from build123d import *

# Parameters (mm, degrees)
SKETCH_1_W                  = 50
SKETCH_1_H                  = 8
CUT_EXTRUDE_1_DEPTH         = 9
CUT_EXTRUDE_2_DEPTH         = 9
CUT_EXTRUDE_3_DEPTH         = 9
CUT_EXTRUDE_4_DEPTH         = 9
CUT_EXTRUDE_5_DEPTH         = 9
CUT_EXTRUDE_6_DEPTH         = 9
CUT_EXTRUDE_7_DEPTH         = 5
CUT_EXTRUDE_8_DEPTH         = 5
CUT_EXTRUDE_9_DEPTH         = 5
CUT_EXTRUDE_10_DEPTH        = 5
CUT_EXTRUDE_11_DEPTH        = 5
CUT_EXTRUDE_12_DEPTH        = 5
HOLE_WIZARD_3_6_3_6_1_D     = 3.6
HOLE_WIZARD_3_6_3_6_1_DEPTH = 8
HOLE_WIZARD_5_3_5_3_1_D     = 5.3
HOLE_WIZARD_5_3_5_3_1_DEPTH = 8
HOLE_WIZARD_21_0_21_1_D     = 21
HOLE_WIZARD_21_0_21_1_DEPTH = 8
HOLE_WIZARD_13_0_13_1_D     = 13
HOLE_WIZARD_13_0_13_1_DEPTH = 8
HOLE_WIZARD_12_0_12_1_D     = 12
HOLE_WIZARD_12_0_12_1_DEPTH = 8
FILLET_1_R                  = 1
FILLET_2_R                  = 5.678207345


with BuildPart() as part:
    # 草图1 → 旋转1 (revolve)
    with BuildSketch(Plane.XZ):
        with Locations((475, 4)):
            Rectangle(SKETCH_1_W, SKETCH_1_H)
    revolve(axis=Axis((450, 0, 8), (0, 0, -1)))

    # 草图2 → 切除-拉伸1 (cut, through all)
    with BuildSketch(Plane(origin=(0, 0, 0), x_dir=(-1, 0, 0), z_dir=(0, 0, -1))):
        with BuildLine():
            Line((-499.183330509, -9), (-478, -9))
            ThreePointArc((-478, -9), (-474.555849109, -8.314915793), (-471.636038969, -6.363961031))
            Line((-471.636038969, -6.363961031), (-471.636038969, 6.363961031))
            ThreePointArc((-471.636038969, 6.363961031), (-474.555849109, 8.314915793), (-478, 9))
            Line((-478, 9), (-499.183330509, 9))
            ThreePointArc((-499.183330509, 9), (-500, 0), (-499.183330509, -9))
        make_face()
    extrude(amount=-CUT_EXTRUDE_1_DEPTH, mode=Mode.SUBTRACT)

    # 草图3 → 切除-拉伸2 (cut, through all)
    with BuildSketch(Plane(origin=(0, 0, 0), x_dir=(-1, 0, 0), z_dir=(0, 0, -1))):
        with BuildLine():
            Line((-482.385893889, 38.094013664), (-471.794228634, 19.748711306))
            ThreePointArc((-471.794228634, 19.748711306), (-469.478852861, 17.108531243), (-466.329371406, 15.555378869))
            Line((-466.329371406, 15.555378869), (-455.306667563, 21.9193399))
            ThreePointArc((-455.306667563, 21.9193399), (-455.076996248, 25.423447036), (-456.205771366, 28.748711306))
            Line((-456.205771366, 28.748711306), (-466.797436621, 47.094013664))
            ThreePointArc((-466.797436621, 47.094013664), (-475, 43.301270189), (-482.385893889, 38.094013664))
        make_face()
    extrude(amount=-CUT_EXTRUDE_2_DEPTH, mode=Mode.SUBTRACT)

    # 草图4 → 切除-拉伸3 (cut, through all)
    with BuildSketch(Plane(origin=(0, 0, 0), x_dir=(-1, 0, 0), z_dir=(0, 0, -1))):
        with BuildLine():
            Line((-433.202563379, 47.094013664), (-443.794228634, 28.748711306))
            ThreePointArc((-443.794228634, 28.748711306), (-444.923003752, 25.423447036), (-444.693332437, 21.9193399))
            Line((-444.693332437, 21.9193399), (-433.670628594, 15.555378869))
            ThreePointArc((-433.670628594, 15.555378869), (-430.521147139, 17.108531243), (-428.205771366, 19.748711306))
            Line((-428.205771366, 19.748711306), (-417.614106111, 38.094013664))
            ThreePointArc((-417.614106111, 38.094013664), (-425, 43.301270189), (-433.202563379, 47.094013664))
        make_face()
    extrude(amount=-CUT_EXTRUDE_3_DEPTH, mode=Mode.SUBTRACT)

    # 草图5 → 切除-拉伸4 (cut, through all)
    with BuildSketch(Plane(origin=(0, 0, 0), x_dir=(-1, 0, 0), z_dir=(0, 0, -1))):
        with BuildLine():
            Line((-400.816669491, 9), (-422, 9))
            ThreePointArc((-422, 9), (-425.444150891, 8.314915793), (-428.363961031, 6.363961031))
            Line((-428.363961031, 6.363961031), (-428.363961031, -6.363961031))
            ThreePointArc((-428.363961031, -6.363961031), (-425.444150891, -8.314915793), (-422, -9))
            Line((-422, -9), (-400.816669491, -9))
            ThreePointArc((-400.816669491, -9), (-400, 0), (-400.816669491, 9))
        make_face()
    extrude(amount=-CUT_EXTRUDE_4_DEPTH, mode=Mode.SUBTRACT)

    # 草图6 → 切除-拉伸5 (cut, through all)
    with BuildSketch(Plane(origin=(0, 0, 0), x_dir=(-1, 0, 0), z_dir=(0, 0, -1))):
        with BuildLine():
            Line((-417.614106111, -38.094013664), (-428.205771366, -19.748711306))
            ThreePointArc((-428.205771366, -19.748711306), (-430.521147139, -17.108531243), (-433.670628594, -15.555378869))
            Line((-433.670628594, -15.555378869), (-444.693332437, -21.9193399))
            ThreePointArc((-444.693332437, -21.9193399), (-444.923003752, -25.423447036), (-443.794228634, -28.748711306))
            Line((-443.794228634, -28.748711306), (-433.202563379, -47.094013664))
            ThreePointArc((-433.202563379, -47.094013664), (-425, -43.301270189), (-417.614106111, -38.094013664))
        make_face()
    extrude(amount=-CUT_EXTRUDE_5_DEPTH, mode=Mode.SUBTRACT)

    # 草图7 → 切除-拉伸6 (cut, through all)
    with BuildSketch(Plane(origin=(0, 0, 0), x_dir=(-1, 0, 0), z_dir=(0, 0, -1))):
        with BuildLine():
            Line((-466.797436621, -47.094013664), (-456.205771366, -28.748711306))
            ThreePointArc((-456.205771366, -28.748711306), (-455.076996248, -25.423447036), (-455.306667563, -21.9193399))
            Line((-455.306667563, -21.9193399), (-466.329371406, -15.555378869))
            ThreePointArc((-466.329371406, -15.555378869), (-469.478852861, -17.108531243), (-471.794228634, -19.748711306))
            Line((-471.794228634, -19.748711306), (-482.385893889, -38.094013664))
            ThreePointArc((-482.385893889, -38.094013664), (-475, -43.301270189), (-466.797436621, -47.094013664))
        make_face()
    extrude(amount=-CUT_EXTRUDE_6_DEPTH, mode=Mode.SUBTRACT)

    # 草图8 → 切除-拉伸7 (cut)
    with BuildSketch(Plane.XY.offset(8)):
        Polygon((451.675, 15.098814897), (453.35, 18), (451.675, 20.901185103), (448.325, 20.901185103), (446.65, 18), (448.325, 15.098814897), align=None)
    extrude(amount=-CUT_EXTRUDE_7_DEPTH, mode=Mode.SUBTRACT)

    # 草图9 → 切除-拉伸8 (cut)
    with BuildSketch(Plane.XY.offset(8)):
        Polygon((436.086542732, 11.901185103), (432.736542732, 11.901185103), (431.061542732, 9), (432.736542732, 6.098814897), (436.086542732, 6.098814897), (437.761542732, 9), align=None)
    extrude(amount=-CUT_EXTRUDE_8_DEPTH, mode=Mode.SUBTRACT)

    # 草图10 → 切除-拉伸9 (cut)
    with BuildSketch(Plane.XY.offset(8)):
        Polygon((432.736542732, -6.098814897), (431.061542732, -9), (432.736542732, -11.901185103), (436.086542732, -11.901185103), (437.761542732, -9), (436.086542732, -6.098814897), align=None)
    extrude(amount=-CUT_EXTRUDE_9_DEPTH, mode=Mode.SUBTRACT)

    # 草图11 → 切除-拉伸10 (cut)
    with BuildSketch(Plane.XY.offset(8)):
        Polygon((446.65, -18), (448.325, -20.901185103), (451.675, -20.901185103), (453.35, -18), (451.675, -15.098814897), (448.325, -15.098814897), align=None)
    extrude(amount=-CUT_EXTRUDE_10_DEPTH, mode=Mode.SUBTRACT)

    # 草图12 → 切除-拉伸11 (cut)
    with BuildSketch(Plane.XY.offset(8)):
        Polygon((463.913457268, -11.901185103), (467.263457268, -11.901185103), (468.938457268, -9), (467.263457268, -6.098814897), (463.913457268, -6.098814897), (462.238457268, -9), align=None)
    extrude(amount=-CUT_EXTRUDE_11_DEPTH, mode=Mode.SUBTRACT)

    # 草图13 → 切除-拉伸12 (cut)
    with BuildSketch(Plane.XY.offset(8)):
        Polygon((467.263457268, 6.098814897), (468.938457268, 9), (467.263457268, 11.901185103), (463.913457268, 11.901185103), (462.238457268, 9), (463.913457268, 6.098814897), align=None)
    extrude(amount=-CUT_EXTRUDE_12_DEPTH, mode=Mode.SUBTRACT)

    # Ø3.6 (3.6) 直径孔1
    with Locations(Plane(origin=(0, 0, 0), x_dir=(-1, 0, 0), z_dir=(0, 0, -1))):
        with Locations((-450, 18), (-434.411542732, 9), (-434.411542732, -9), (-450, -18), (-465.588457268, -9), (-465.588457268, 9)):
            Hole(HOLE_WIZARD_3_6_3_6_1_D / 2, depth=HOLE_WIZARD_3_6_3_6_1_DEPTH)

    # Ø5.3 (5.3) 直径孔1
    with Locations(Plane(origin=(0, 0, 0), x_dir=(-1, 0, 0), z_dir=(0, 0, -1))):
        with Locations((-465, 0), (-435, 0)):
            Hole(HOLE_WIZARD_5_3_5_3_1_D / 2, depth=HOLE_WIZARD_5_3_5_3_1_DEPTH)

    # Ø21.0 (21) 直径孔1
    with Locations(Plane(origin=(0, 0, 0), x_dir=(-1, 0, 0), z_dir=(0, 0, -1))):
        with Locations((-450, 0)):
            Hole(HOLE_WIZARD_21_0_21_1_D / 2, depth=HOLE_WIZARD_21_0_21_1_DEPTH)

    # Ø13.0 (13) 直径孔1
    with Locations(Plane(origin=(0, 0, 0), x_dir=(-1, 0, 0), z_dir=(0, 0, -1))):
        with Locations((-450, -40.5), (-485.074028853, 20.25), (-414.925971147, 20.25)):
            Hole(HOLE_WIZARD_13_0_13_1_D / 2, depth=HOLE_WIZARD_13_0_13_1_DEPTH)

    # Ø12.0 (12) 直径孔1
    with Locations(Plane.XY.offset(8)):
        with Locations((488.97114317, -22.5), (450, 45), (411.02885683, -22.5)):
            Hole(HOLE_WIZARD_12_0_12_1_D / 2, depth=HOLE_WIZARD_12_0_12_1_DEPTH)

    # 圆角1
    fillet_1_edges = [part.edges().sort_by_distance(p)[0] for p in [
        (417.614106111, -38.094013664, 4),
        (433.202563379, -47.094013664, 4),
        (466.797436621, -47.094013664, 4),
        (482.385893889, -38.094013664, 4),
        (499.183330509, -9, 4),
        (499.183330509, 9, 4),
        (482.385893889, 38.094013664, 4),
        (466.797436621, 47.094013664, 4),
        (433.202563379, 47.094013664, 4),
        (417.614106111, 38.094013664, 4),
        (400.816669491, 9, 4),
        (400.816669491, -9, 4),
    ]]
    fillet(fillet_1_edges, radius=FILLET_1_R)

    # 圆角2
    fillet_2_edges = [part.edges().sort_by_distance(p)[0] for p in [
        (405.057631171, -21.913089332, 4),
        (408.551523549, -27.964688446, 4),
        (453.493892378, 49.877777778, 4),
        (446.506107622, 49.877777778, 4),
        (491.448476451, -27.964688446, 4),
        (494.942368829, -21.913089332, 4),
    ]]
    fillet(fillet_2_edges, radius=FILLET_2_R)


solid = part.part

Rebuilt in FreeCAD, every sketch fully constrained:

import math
import FreeCAD as App
import Part
import Sketcher
from FreeCAD import Vector
Q = App.Units.Quantity


def edges_at(feature, points):
    """Names of the edges that pass closest to the given points."""
    edges = feature.Shape.Edges
    near = lambda p: min(range(len(edges)), key=lambda i: edges[i].distToShape(Part.Vertex(*p))[0])
    return sorted({f"Edge{near(p) + 1}" for p in points})

doc = App.newDocument("Part")
body = doc.addObject("PartDesign::Body", "Body")

sketch1 = body.newObject("Sketcher::SketchObject", "Sketch")
sketch1.AttachmentSupport = (doc.getObject("XZ_Plane"), [""])
sketch1.MapMode = "FlatFace"
sketch1.addGeometry(Part.LineSegment(Vector(450, 8, 0), Vector(450, 0, 0)), False)
sketch1.addGeometry(Part.LineSegment(Vector(450, 0, 0), Vector(500, 0, 0)), False)
sketch1.addGeometry(Part.LineSegment(Vector(500, 0, 0), Vector(500, 8, 0)), False)
sketch1.addGeometry(Part.LineSegment(Vector(500, 8, 0), Vector(450, 8, 0)), False)
sketch1.addGeometry(Part.LineSegment(Vector(450, 8, 0), Vector(450, 0, 0)), True)
sketch1.addConstraint(Sketcher.Constraint("Coincident", 0, 2, 1, 1))
sketch1.addConstraint(Sketcher.Constraint("Coincident", 1, 2, 2, 1))
sketch1.addConstraint(Sketcher.Constraint("Coincident", 2, 2, 3, 1))
sketch1.addConstraint(Sketcher.Constraint("Coincident", 3, 2, 0, 1))
sketch1.addConstraint(Sketcher.Constraint("Vertical", 0))
sketch1.addConstraint(Sketcher.Constraint("Horizontal", 1))
sketch1.addConstraint(Sketcher.Constraint("Vertical", 2))
sketch1.addConstraint(Sketcher.Constraint("Horizontal", 3))
sketch1.addConstraint(Sketcher.Constraint("Vertical", 4))
sketch1.addConstraint(Sketcher.Constraint("Coincident", 4, 1, 3, 2))
sketch1.addConstraint(Sketcher.Constraint("PointOnObject", 0, 2, -1))
sketch1.addConstraint(Sketcher.Constraint("PointOnObject", 4, 2, -1))
sketch1.addConstraint(Sketcher.Constraint("DistanceX", 1, 1, 1, 2, Q("50 mm")))
sketch1.addConstraint(Sketcher.Constraint("DistanceY", 0, 2, 0, 1, Q("8 mm")))
sketch1.addConstraint(Sketcher.Constraint("DistanceX", -1, 1, 0, 2, Q("450 mm")))
revolution = body.newObject("PartDesign::Revolution", "Revolution")
revolution.Profile = sketch1
revolution.ReferenceAxis = (sketch1, ["Axis0"])
revolution.Angle = 360

sketch2 = body.newObject("Sketcher::SketchObject", "Sketch001")
sketch2.AttachmentSupport = (doc.getObject("XY_Plane"), [""])
sketch2.MapMode = "FlatFace"
sketch2.addGeometry(Part.LineSegment(Vector(499, -9, 0), Vector(478, -9, 0)), False)
sketch2.addGeometry(Part.ArcOfCircle(Part.Circle(Vector(478, 0, 0), Vector(0, 0, 1), 9), math.radians(-135), math.radians(-90)), False)
sketch2.addGeometry(Part.LineSegment(Vector(472, -6, 0), Vector(472, 6, 0)), False)
sketch2.addGeometry(Part.ArcOfCircle(Part.Circle(Vector(478, 0, 0), Vector(0, 0, 1), 9), math.radians(90), math.radians(135)), False)
sketch2.addGeometry(Part.LineSegment(Vector(478, 9, 0), Vector(499, 9, 0)), False)
sketch2.addGeometry(Part.ArcOfCircle(Part.Circle(Vector(450, 0, 0), Vector(0, 0, 1), 50), math.radians(-10), math.radians(10)), False)
sketch2.addConstraint(Sketcher.Constraint("Tangent", 0, 2, 1, 2))
sketch2.addConstraint(Sketcher.Constraint("Coincident", 1, 1, 2, 1))
sketch2.addConstraint(Sketcher.Constraint("Coincident", 2, 2, 3, 2))
sketch2.addConstraint(Sketcher.Constraint("Tangent", 3, 1, 4, 1))
sketch2.addConstraint(Sketcher.Constraint("Coincident", 4, 2, 5, 2))
sketch2.addConstraint(Sketcher.Constraint("Coincident", 5, 1, 0, 1))
sketch2.addConstraint(Sketcher.Constraint("Horizontal", 0))
sketch2.addConstraint(Sketcher.Constraint("Vertical", 2))
sketch2.addConstraint(Sketcher.Constraint("Horizontal", 4))
sketch2.addConstraint(Sketcher.Constraint("Coincident", 3, 3, 1, 3))
sketch2.addConstraint(Sketcher.Constraint("Equal", 1, 3))
sketch2.addConstraint(Sketcher.Constraint("Symmetric", 4, 2, 5, 1, -1))
sketch2.addConstraint(Sketcher.Constraint("Radius", 1, Q("9 mm")))
sketch2.addConstraint(Sketcher.Constraint("Radius", 5, Q("50 mm")))
sketch2.addConstraint(Sketcher.Constraint("DistanceX", -1, 1, 1, 3, Q("478 mm")))
sketch2.addConstraint(Sketcher.Constraint("DistanceX", -1, 1, 5, 3, Q("450 mm")))
sketch2.addConstraint(Sketcher.Constraint("DistanceY", 2, 1, 2, 2, Q("12.727922 mm")))
pocket1 = body.newObject("PartDesign::Pocket", "Pocket")
pocket1.Profile = sketch2
pocket1.Type = "ThroughAll"
pocket1.Reversed = True

sketch3 = body.newObject("Sketcher::SketchObject", "Sketch002")
sketch3.AttachmentSupport = (doc.getObject("XY_Plane"), [""])
sketch3.MapMode = "FlatFace"
sketch3.addGeometry(Part.LineSegment(Vector(482, 38, 0), Vector(472, 20, 0)), False)
sketch3.addGeometry(Part.ArcOfCircle(Part.Circle(Vector(464, 24, 0), Vector(0, 0, 1), 9), math.radians(-75), math.radians(-30)), False)
sketch3.addGeometry(Part.LineSegment(Vector(466, 16, 0), Vector(455, 22, 0)), False)
sketch3.addGeometry(Part.ArcOfCircle(Part.Circle(Vector(464, 24, 0), Vector(0, 0, 1), 9), math.radians(150), math.radians(195)), False)
sketch3.addGeometry(Part.LineSegment(Vector(456, 29, 0), Vector(467, 47, 0)), False)
sketch3.addGeometry(Part.ArcOfCircle(Part.Circle(Vector(450, 0, 0), Vector(0, 0, 1), 50), math.radians(50), math.radians(70)), False)
sketch3.addConstraint(Sketcher.Constraint("Tangent", 0, 2, 1, 2))
sketch3.addConstraint(Sketcher.Constraint("Coincident", 1, 1, 2, 1))
sketch3.addConstraint(Sketcher.Constraint("Coincident", 2, 2, 3, 2))
sketch3.addConstraint(Sketcher.Constraint("Tangent", 3, 1, 4, 1))
sketch3.addConstraint(Sketcher.Constraint("Coincident", 4, 2, 5, 2))
sketch3.addConstraint(Sketcher.Constraint("Coincident", 5, 1, 0, 1))
sketch3.addConstraint(Sketcher.Constraint("Coincident", 3, 3, 1, 3))
sketch3.addConstraint(Sketcher.Constraint("Equal", 1, 3))
sketch3.addConstraint(Sketcher.Constraint("PointOnObject", 5, 3, -1))
sketch3.addConstraint(Sketcher.Constraint("Perpendicular", 0, 2))
sketch3.addConstraint(Sketcher.Constraint("Perpendicular", 2, 4))
sketch3.addConstraint(Sketcher.Constraint("Equal", 0, 4))
sketch3.addConstraint(Sketcher.Constraint("Radius", 1, Q("9 mm")))
sketch3.addConstraint(Sketcher.Constraint("Radius", 5, Q("50 mm")))
sketch3.addConstraint(Sketcher.Constraint("Angle", 0, Q("-120 deg")))
sketch3.addConstraint(Sketcher.Constraint("DistanceX", -1, 1, 1, 3, Q("464 mm")))
sketch3.addConstraint(Sketcher.Constraint("DistanceX", -1, 1, 5, 3, Q("450 mm")))
sketch3.addConstraint(Sketcher.Constraint("DistanceX", 3, 1, 1, 1, Q("10.1236 mm")))
pocket2 = body.newObject("PartDesign::Pocket", "Pocket001")
pocket2.Profile = sketch3
pocket2.Type = "ThroughAll"
pocket2.Reversed = True

sketch4 = body.newObject("Sketcher::SketchObject", "Sketch003")
sketch4.AttachmentSupport = (doc.getObject("XY_Plane"), [""])
sketch4.MapMode = "FlatFace"
sketch4.addGeometry(Part.LineSegment(Vector(433, 47, 0), Vector(444, 29, 0)), False)
sketch4.addGeometry(Part.ArcOfCircle(Part.Circle(Vector(436, 24, 0), Vector(0, 0, 1), 9), math.radians(-15), math.radians(30)), False)
sketch4.addGeometry(Part.LineSegment(Vector(445, 22, 0), Vector(434, 16, 0)), False)
sketch4.addGeometry(Part.ArcOfCircle(Part.Circle(Vector(436, 24, 0), Vector(0, 0, 1), 9), math.radians(-150), math.radians(-105)), False)
sketch4.addGeometry(Part.LineSegment(Vector(428, 20, 0), Vector(418, 38, 0)), False)
sketch4.addGeometry(Part.ArcOfCircle(Part.Circle(Vector(450, 0, 0), Vector(0, 0, 1), 50), math.radians(110), math.radians(130)), False)
sketch4.addConstraint(Sketcher.Constraint("Tangent", 0, 2, 1, 2))
sketch4.addConstraint(Sketcher.Constraint("Coincident", 1, 1, 2, 1))
sketch4.addConstraint(Sketcher.Constraint("Coincident", 2, 2, 3, 2))
sketch4.addConstraint(Sketcher.Constraint("Tangent", 3, 1, 4, 1))
sketch4.addConstraint(Sketcher.Constraint("Coincident", 4, 2, 5, 2))
sketch4.addConstraint(Sketcher.Constraint("Coincident", 5, 1, 0, 1))
sketch4.addConstraint(Sketcher.Constraint("Coincident", 3, 3, 1, 3))
sketch4.addConstraint(Sketcher.Constraint("Equal", 1, 3))
sketch4.addConstraint(Sketcher.Constraint("PointOnObject", 5, 3, -1))
sketch4.addConstraint(Sketcher.Constraint("Perpendicular", 0, 2))
sketch4.addConstraint(Sketcher.Constraint("Perpendicular", 2, 4))
sketch4.addConstraint(Sketcher.Constraint("Equal", 0, 4))
sketch4.addConstraint(Sketcher.Constraint("Radius", 1, Q("9 mm")))
sketch4.addConstraint(Sketcher.Constraint("Radius", 5, Q("50 mm")))
sketch4.addConstraint(Sketcher.Constraint("Angle", 0, Q("-60 deg")))
sketch4.addConstraint(Sketcher.Constraint("DistanceX", -1, 1, 1, 3, Q("436 mm")))
sketch4.addConstraint(Sketcher.Constraint("DistanceX", -1, 1, 5, 3, Q("450 mm")))
sketch4.addConstraint(Sketcher.Constraint("DistanceX", 2, 2, 0, 2, Q("10.1236 mm")))
pocket3 = body.newObject("PartDesign::Pocket", "Pocket002")
pocket3.Profile = sketch4
pocket3.Type = "ThroughAll"
pocket3.Reversed = True

sketch5 = body.newObject("Sketcher::SketchObject", "Sketch004")
sketch5.AttachmentSupport = (doc.getObject("XY_Plane"), [""])
sketch5.MapMode = "FlatFace"
sketch5.addGeometry(Part.LineSegment(Vector(401, 9, 0), Vector(422, 9, 0)), False)
sketch5.addGeometry(Part.ArcOfCircle(Part.Circle(Vector(422, 0, 0), Vector(0, 0, 1), 9), math.radians(45), math.radians(90)), False)
sketch5.addGeometry(Part.LineSegment(Vector(428, 6, 0), Vector(428, -6, 0)), False)
sketch5.addGeometry(Part.ArcOfCircle(Part.Circle(Vector(422, 0, 0), Vector(0, 0, 1), 9), math.radians(-90), math.radians(-45)), False)
sketch5.addGeometry(Part.LineSegment(Vector(422, -9, 0), Vector(401, -9, 0)), False)
sketch5.addGeometry(Part.ArcOfCircle(Part.Circle(Vector(450, 0, 0), Vector(0, 0, 1), 50), math.radians(170), math.radians(190)), False)
sketch5.addConstraint(Sketcher.Constraint("Tangent", 0, 2, 1, 2))
sketch5.addConstraint(Sketcher.Constraint("Coincident", 1, 1, 2, 1))
sketch5.addConstraint(Sketcher.Constraint("Coincident", 2, 2, 3, 2))
sketch5.addConstraint(Sketcher.Constraint("Tangent", 3, 1, 4, 1))
sketch5.addConstraint(Sketcher.Constraint("Coincident", 4, 2, 5, 2))
sketch5.addConstraint(Sketcher.Constraint("Coincident", 5, 1, 0, 1))
sketch5.addConstraint(Sketcher.Constraint("Horizontal", 0))
sketch5.addConstraint(Sketcher.Constraint("Vertical", 2))
sketch5.addConstraint(Sketcher.Constraint("Horizontal", 4))
sketch5.addConstraint(Sketcher.Constraint("Coincident", 3, 3, 1, 3))
sketch5.addConstraint(Sketcher.Constraint("Equal", 1, 3))
sketch5.addConstraint(Sketcher.Constraint("Symmetric", 4, 2, 5, 1, -1))
sketch5.addConstraint(Sketcher.Constraint("Radius", 1, Q("9 mm")))
sketch5.addConstraint(Sketcher.Constraint("Radius", 5, Q("50 mm")))
sketch5.addConstraint(Sketcher.Constraint("DistanceX", -1, 1, 1, 3, Q("422 mm")))
sketch5.addConstraint(Sketcher.Constraint("DistanceX", -1, 1, 5, 3, Q("450 mm")))
sketch5.addConstraint(Sketcher.Constraint("DistanceY", 2, 2, 2, 1, Q("12.727922 mm")))
pocket4 = body.newObject("PartDesign::Pocket", "Pocket003")
pocket4.Profile = sketch5
pocket4.Type = "ThroughAll"
pocket4.Reversed = True

sketch6 = body.newObject("Sketcher::SketchObject", "Sketch005")
sketch6.AttachmentSupport = (doc.getObject("XY_Plane"), [""])
sketch6.MapMode = "FlatFace"
sketch6.addGeometry(Part.LineSegment(Vector(418, -38, 0), Vector(428, -20, 0)), False)
sketch6.addGeometry(Part.ArcOfCircle(Part.Circle(Vector(436, -24, 0), Vector(0, 0, 1), 9), math.radians(105), math.radians(150)), False)
sketch6.addGeometry(Part.LineSegment(Vector(434, -16, 0), Vector(445, -22, 0)), False)
sketch6.addGeometry(Part.ArcOfCircle(Part.Circle(Vector(436, -24, 0), Vector(0, 0, 1), 9), math.radians(-30), math.radians(15)), False)
sketch6.addGeometry(Part.LineSegment(Vector(444, -29, 0), Vector(433, -47, 0)), False)
sketch6.addGeometry(Part.ArcOfCircle(Part.Circle(Vector(450, 0, 0), Vector(0, 0, 1), 50), math.radians(-130), math.radians(-110)), False)
sketch6.addConstraint(Sketcher.Constraint("Tangent", 0, 2, 1, 2))
sketch6.addConstraint(Sketcher.Constraint("Coincident", 1, 1, 2, 1))
sketch6.addConstraint(Sketcher.Constraint("Coincident", 2, 2, 3, 2))
sketch6.addConstraint(Sketcher.Constraint("Tangent", 3, 1, 4, 1))
sketch6.addConstraint(Sketcher.Constraint("Coincident", 4, 2, 5, 2))
sketch6.addConstraint(Sketcher.Constraint("Coincident", 5, 1, 0, 1))
sketch6.addConstraint(Sketcher.Constraint("Coincident", 3, 3, 1, 3))
sketch6.addConstraint(Sketcher.Constraint("Equal", 1, 3))
sketch6.addConstraint(Sketcher.Constraint("PointOnObject", 5, 3, -1))
sketch6.addConstraint(Sketcher.Constraint("Perpendicular", 0, 2))
sketch6.addConstraint(Sketcher.Constraint("Perpendicular", 2, 4))
sketch6.addConstraint(Sketcher.Constraint("Equal", 0, 4))
sketch6.addConstraint(Sketcher.Constraint("Radius", 1, Q("9 mm")))
sketch6.addConstraint(Sketcher.Constraint("Radius", 5, Q("50 mm")))
sketch6.addConstraint(Sketcher.Constraint("Angle", 0, Q("60 deg")))
sketch6.addConstraint(Sketcher.Constraint("DistanceX", -1, 1, 1, 3, Q("436 mm")))
sketch6.addConstraint(Sketcher.Constraint("DistanceX", -1, 1, 5, 3, Q("450 mm")))
sketch6.addConstraint(Sketcher.Constraint("DistanceX", 1, 1, 3, 1, Q("10.1236 mm")))
pocket5 = body.newObject("PartDesign::Pocket", "Pocket004")
pocket5.Profile = sketch6
pocket5.Type = "ThroughAll"
pocket5.Reversed = True

sketch7 = body.newObject("Sketcher::SketchObject", "Sketch006")
sketch7.AttachmentSupport = (doc.getObject("XY_Plane"), [""])
sketch7.MapMode = "FlatFace"
sketch7.addGeometry(Part.LineSegment(Vector(467, -47, 0), Vector(456, -29, 0)), False)
sketch7.addGeometry(Part.ArcOfCircle(Part.Circle(Vector(464, -24, 0), Vector(0, 0, 1), 9), math.radians(165), math.radians(210)), False)
sketch7.addGeometry(Part.LineSegment(Vector(455, -22, 0), Vector(466, -16, 0)), False)
sketch7.addGeometry(Part.ArcOfCircle(Part.Circle(Vector(464, -24, 0), Vector(0, 0, 1), 9), math.radians(30), math.radians(75)), False)
sketch7.addGeometry(Part.LineSegment(Vector(472, -20, 0), Vector(482, -38, 0)), False)
sketch7.addGeometry(Part.ArcOfCircle(Part.Circle(Vector(450, 0, 0), Vector(0, 0, 1), 50), math.radians(-70), math.radians(-50)), False)
sketch7.addConstraint(Sketcher.Constraint("Tangent", 0, 2, 1, 2))
sketch7.addConstraint(Sketcher.Constraint("Coincident", 1, 1, 2, 1))
sketch7.addConstraint(Sketcher.Constraint("Coincident", 2, 2, 3, 2))
sketch7.addConstraint(Sketcher.Constraint("Tangent", 3, 1, 4, 1))
sketch7.addConstraint(Sketcher.Constraint("Coincident", 4, 2, 5, 2))
sketch7.addConstraint(Sketcher.Constraint("Coincident", 5, 1, 0, 1))
sketch7.addConstraint(Sketcher.Constraint("Coincident", 3, 3, 1, 3))
sketch7.addConstraint(Sketcher.Constraint("Equal", 1, 3))
sketch7.addConstraint(Sketcher.Constraint("PointOnObject", 5, 3, -1))
sketch7.addConstraint(Sketcher.Constraint("Perpendicular", 0, 2))
sketch7.addConstraint(Sketcher.Constraint("Perpendicular", 2, 4))
sketch7.addConstraint(Sketcher.Constraint("Equal", 0, 4))
sketch7.addConstraint(Sketcher.Constraint("Radius", 1, Q("9 mm")))
sketch7.addConstraint(Sketcher.Constraint("Radius", 5, Q("50 mm")))
sketch7.addConstraint(Sketcher.Constraint("Angle", 0, Q("120 deg")))
sketch7.addConstraint(Sketcher.Constraint("DistanceX", -1, 1, 1, 3, Q("464 mm")))
sketch7.addConstraint(Sketcher.Constraint("DistanceX", -1, 1, 5, 3, Q("450 mm")))
sketch7.addConstraint(Sketcher.Constraint("DistanceX", 0, 2, 2, 2, Q("10.1236 mm")))
pocket6 = body.newObject("PartDesign::Pocket", "Pocket005")
pocket6.Profile = sketch7
pocket6.Type = "ThroughAll"
pocket6.Reversed = True

sketch8 = body.newObject("Sketcher::SketchObject", "Sketch007")
sketch8.AttachmentSupport = (doc.getObject("XY_Plane"), [""])
sketch8.MapMode = "FlatFace"
sketch8.AttachmentOffset = App.Placement(Vector(0, 0, 8), App.Rotation())
sketch8.addGeometry(Part.LineSegment(Vector(451.7, 15.1, 0), Vector(453.4, 18, 0)), False)
sketch8.addGeometry(Part.LineSegment(Vector(453.4, 18, 0), Vector(451.7, 20.9, 0)), False)
sketch8.addGeometry(Part.LineSegment(Vector(451.7, 20.9, 0), Vector(448.3, 20.9, 0)), False)
sketch8.addGeometry(Part.LineSegment(Vector(448.3, 20.9, 0), Vector(446.6, 18, 0)), False)
sketch8.addGeometry(Part.LineSegment(Vector(446.6, 18, 0), Vector(448.3, 15.1, 0)), False)
sketch8.addGeometry(Part.LineSegment(Vector(448.3, 15.1, 0), Vector(451.7, 15.1, 0)), False)
sketch8.addConstraint(Sketcher.Constraint("Coincident", 0, 2, 1, 1))
sketch8.addConstraint(Sketcher.Constraint("Coincident", 1, 2, 2, 1))
sketch8.addConstraint(Sketcher.Constraint("Coincident", 2, 2, 3, 1))
sketch8.addConstraint(Sketcher.Constraint("Coincident", 3, 2, 4, 1))
sketch8.addConstraint(Sketcher.Constraint("Coincident", 4, 2, 5, 1))
sketch8.addConstraint(Sketcher.Constraint("Coincident", 5, 2, 0, 1))
sketch8.addConstraint(Sketcher.Constraint("Horizontal", 2))
sketch8.addConstraint(Sketcher.Constraint("Horizontal", 5))
sketch8.addConstraint(Sketcher.Constraint("Parallel", 0, 3))
sketch8.addConstraint(Sketcher.Constraint("Parallel", 1, 4))
sketch8.addConstraint(Sketcher.Constraint("Horizontal", 0, 2, 3, 2))
sketch8.addConstraint(Sketcher.Constraint("Vertical", 2, 2, 4, 2))
sketch8.addConstraint(Sketcher.Constraint("Vertical", 1, 2, 5, 2))
sketch8.addConstraint(Sketcher.Constraint("Angle", 0, Q("60 deg")))
sketch8.addConstraint(Sketcher.Constraint("DistanceY", -1, 1, 0, 2, Q("18 mm")))
sketch8.addConstraint(Sketcher.Constraint("DistanceX", 2, 2, 2, 1, Q("3.35 mm")))
sketch8.addConstraint(Sketcher.Constraint("DistanceX", 3, 2, 0, 2, Q("6.7 mm")))
sketch8.addConstraint(Sketcher.Constraint("DistanceX", -1, 1, 0, 2, Q("453.35 mm")))
pocket7 = body.newObject("PartDesign::Pocket", "Pocket006")
pocket7.Profile = sketch8
pocket7.Length = 5

sketch9 = body.newObject("Sketcher::SketchObject", "Sketch008")
sketch9.AttachmentSupport = (doc.getObject("XY_Plane"), [""])
sketch9.MapMode = "FlatFace"
sketch9.AttachmentOffset = App.Placement(Vector(0, 0, 8), App.Rotation())
sketch9.addGeometry(Part.LineSegment(Vector(436.1, 11.9, 0), Vector(432.7, 11.9, 0)), False)
sketch9.addGeometry(Part.LineSegment(Vector(432.7, 11.9, 0), Vector(431.1, 9, 0)), False)
sketch9.addGeometry(Part.LineSegment(Vector(431.1, 9, 0), Vector(432.7, 6.1, 0)), False)
sketch9.addGeometry(Part.LineSegment(Vector(432.7, 6.1, 0), Vector(436.1, 6.1, 0)), False)
sketch9.addGeometry(Part.LineSegment(Vector(436.1, 6.1, 0), Vector(437.8, 9, 0)), False)
sketch9.addGeometry(Part.LineSegment(Vector(437.8, 9, 0), Vector(436.1, 11.9, 0)), False)
sketch9.addConstraint(Sketcher.Constraint("Coincident", 0, 2, 1, 1))
sketch9.addConstraint(Sketcher.Constraint("Coincident", 1, 2, 2, 1))
sketch9.addConstraint(Sketcher.Constraint("Coincident", 2, 2, 3, 1))
sketch9.addConstraint(Sketcher.Constraint("Coincident", 3, 2, 4, 1))
sketch9.addConstraint(Sketcher.Constraint("Coincident", 4, 2, 5, 1))
sketch9.addConstraint(Sketcher.Constraint("Coincident", 5, 2, 0, 1))
sketch9.addConstraint(Sketcher.Constraint("Horizontal", 0))
sketch9.addConstraint(Sketcher.Constraint("Horizontal", 3))
sketch9.addConstraint(Sketcher.Constraint("Parallel", 1, 4))
sketch9.addConstraint(Sketcher.Constraint("Parallel", 2, 5))
sketch9.addConstraint(Sketcher.Constraint("Horizontal", 1, 2, 4, 2))
sketch9.addConstraint(Sketcher.Constraint("Vertical", 0, 2, 2, 2))
sketch9.addConstraint(Sketcher.Constraint("Vertical", 3, 2, 5, 2))
sketch9.addConstraint(Sketcher.Constraint("Angle", 1, Q("-120 deg")))
sketch9.addConstraint(Sketcher.Constraint("DistanceY", -1, 1, 1, 2, Q("9 mm")))
sketch9.addConstraint(Sketcher.Constraint("DistanceX", 0, 2, 0, 1, Q("3.35 mm")))
sketch9.addConstraint(Sketcher.Constraint("DistanceX", 1, 2, 4, 2, Q("6.7 mm")))
sketch9.addConstraint(Sketcher.Constraint("DistanceX", -1, 1, 0, 2, Q("432.736543 mm")))
pocket8 = body.newObject("PartDesign::Pocket", "Pocket007")
pocket8.Profile = sketch9
pocket8.Length = 5

sketch10 = body.newObject("Sketcher::SketchObject", "Sketch009")
sketch10.AttachmentSupport = (doc.getObject("XY_Plane"), [""])
sketch10.MapMode = "FlatFace"
sketch10.AttachmentOffset = App.Placement(Vector(0, 0, 8), App.Rotation())
sketch10.addGeometry(Part.LineSegment(Vector(432.7, -6.1, 0), Vector(431.1, -9, 0)), False)
sketch10.addGeometry(Part.LineSegment(Vector(431.1, -9, 0), Vector(432.7, -11.9, 0)), False)
sketch10.addGeometry(Part.LineSegment(Vector(432.7, -11.9, 0), Vector(436.1, -11.9, 0)), False)
sketch10.addGeometry(Part.LineSegment(Vector(436.1, -11.9, 0), Vector(437.8, -9, 0)), False)
sketch10.addGeometry(Part.LineSegment(Vector(437.8, -9, 0), Vector(436.1, -6.1, 0)), False)
sketch10.addGeometry(Part.LineSegment(Vector(436.1, -6.1, 0), Vector(432.7, -6.1, 0)), False)
sketch10.addConstraint(Sketcher.Constraint("Coincident", 0, 2, 1, 1))
sketch10.addConstraint(Sketcher.Constraint("Coincident", 1, 2, 2, 1))
sketch10.addConstraint(Sketcher.Constraint("Coincident", 2, 2, 3, 1))
sketch10.addConstraint(Sketcher.Constraint("Coincident", 3, 2, 4, 1))
sketch10.addConstraint(Sketcher.Constraint("Coincident", 4, 2, 5, 1))
sketch10.addConstraint(Sketcher.Constraint("Coincident", 5, 2, 0, 1))
sketch10.addConstraint(Sketcher.Constraint("Horizontal", 2))
sketch10.addConstraint(Sketcher.Constraint("Horizontal", 5))
sketch10.addConstraint(Sketcher.Constraint("Parallel", 0, 3))
sketch10.addConstraint(Sketcher.Constraint("Parallel", 1, 4))
sketch10.addConstraint(Sketcher.Constraint("Horizontal", 0, 2, 3, 2))
sketch10.addConstraint(Sketcher.Constraint("Vertical", 2, 2, 4, 2))
sketch10.addConstraint(Sketcher.Constraint("Vertical", 1, 2, 5, 2))
sketch10.addConstraint(Sketcher.Constraint("Angle", 0, Q("-120 deg")))
sketch10.addConstraint(Sketcher.Constraint("DistanceY", 0, 2, -1, 1, Q("9 mm")))
sketch10.addConstraint(Sketcher.Constraint("DistanceX", 2, 1, 2, 2, Q("3.35 mm")))
sketch10.addConstraint(Sketcher.Constraint("DistanceX", 0, 2, 3, 2, Q("6.7 mm")))
sketch10.addConstraint(Sketcher.Constraint("DistanceX", -1, 1, 0, 2, Q("431.061543 mm")))
pocket9 = body.newObject("PartDesign::Pocket", "Pocket008")
pocket9.Profile = sketch10
pocket9.Length = 5

sketch11 = body.newObject("Sketcher::SketchObject", "Sketch010")
sketch11.AttachmentSupport = (doc.getObject("XY_Plane"), [""])
sketch11.MapMode = "FlatFace"
sketch11.AttachmentOffset = App.Placement(Vector(0, 0, 8), App.Rotation())
sketch11.addGeometry(Part.LineSegment(Vector(446.6, -18, 0), Vector(448.3, -20.9, 0)), False)
sketch11.addGeometry(Part.LineSegment(Vector(448.3, -20.9, 0), Vector(451.7, -20.9, 0)), False)
sketch11.addGeometry(Part.LineSegment(Vector(451.7, -20.9, 0), Vector(453.4, -18, 0)), False)
sketch11.addGeometry(Part.LineSegment(Vector(453.4, -18, 0), Vector(451.7, -15.1, 0)), False)
sketch11.addGeometry(Part.LineSegment(Vector(451.7, -15.1, 0), Vector(448.3, -15.1, 0)), False)
sketch11.addGeometry(Part.LineSegment(Vector(448.3, -15.1, 0), Vector(446.6, -18, 0)), False)
sketch11.addConstraint(Sketcher.Constraint("Coincident", 0, 2, 1, 1))
sketch11.addConstraint(Sketcher.Constraint("Coincident", 1, 2, 2, 1))
sketch11.addConstraint(Sketcher.Constraint("Coincident", 2, 2, 3, 1))
sketch11.addConstraint(Sketcher.Constraint("Coincident", 3, 2, 4, 1))
sketch11.addConstraint(Sketcher.Constraint("Coincident", 4, 2, 5, 1))
sketch11.addConstraint(Sketcher.Constraint("Coincident", 5, 2, 0, 1))
sketch11.addConstraint(Sketcher.Constraint("Horizontal", 1))
sketch11.addConstraint(Sketcher.Constraint("Horizontal", 4))
sketch11.addConstraint(Sketcher.Constraint("Parallel", 0, 3))
sketch11.addConstraint(Sketcher.Constraint("Parallel", 2, 5))
sketch11.addConstraint(Sketcher.Constraint("Horizontal", 2, 2, 5, 2))
sketch11.addConstraint(Sketcher.Constraint("Vertical", 1, 2, 3, 2))
sketch11.addConstraint(Sketcher.Constraint("Vertical", 0, 2, 4, 2))
sketch11.addConstraint(Sketcher.Constraint("Angle", 0, Q("-60 deg")))
sketch11.addConstraint(Sketcher.Constraint("DistanceY", 2, 2, -1, 1, Q("18 mm")))
sketch11.addConstraint(Sketcher.Constraint("DistanceX", 1, 1, 1, 2, Q("3.35 mm")))
sketch11.addConstraint(Sketcher.Constraint("DistanceX", 5, 2, 2, 2, Q("6.7 mm")))
sketch11.addConstraint(Sketcher.Constraint("DistanceX", -1, 1, 2, 2, Q("453.35 mm")))
pocket10 = body.newObject("PartDesign::Pocket", "Pocket009")
pocket10.Profile = sketch11
pocket10.Length = 5

sketch12 = body.newObject("Sketcher::SketchObject", "Sketch011")
sketch12.AttachmentSupport = (doc.getObject("XY_Plane"), [""])
sketch12.MapMode = "FlatFace"
sketch12.AttachmentOffset = App.Placement(Vector(0, 0, 8), App.Rotation())
sketch12.addGeometry(Part.LineSegment(Vector(463.9, -11.9, 0), Vector(467.3, -11.9, 0)), False)
sketch12.addGeometry(Part.LineSegment(Vector(467.3, -11.9, 0), Vector(468.9, -9, 0)), False)
sketch12.addGeometry(Part.LineSegment(Vector(468.9, -9, 0), Vector(467.3, -6.1, 0)), False)
sketch12.addGeometry(Part.LineSegment(Vector(467.3, -6.1, 0), Vector(463.9, -6.1, 0)), False)
sketch12.addGeometry(Part.LineSegment(Vector(463.9, -6.1, 0), Vector(462.2, -9, 0)), False)
sketch12.addGeometry(Part.LineSegment(Vector(462.2, -9, 0), Vector(463.9, -11.9, 0)), False)
sketch12.addConstraint(Sketcher.Constraint("Coincident", 0, 2, 1, 1))
sketch12.addConstraint(Sketcher.Constraint("Coincident", 1, 2, 2, 1))
sketch12.addConstraint(Sketcher.Constraint("Coincident", 2, 2, 3, 1))
sketch12.addConstraint(Sketcher.Constraint("Coincident", 3, 2, 4, 1))
sketch12.addConstraint(Sketcher.Constraint("Coincident", 4, 2, 5, 1))
sketch12.addConstraint(Sketcher.Constraint("Coincident", 5, 2, 0, 1))
sketch12.addConstraint(Sketcher.Constraint("Horizontal", 0))
sketch12.addConstraint(Sketcher.Constraint("Horizontal", 3))
sketch12.addConstraint(Sketcher.Constraint("Parallel", 1, 4))
sketch12.addConstraint(Sketcher.Constraint("Parallel", 2, 5))
sketch12.addConstraint(Sketcher.Constraint("Horizontal", 1, 2, 4, 2))
sketch12.addConstraint(Sketcher.Constraint("Vertical", 0, 2, 2, 2))
sketch12.addConstraint(Sketcher.Constraint("Vertical", 3, 2, 5, 2))
sketch12.addConstraint(Sketcher.Constraint("Angle", 1, Q("60 deg")))
sketch12.addConstraint(Sketcher.Constraint("DistanceY", 1, 2, -1, 1, Q("9 mm")))
sketch12.addConstraint(Sketcher.Constraint("DistanceX", 0, 1, 0, 2, Q("3.35 mm")))
sketch12.addConstraint(Sketcher.Constraint("DistanceX", 4, 2, 1, 2, Q("6.7 mm")))
sketch12.addConstraint(Sketcher.Constraint("DistanceX", -1, 1, 0, 2, Q("467.263457 mm")))
pocket11 = body.newObject("PartDesign::Pocket", "Pocket010")
pocket11.Profile = sketch12
pocket11.Length = 5

sketch13 = body.newObject("Sketcher::SketchObject", "Sketch012")
sketch13.AttachmentSupport = (doc.getObject("XY_Plane"), [""])
sketch13.MapMode = "FlatFace"
sketch13.AttachmentOffset = App.Placement(Vector(0, 0, 8), App.Rotation())
sketch13.addGeometry(Part.LineSegment(Vector(467.3, 6.1, 0), Vector(468.9, 9, 0)), False)
sketch13.addGeometry(Part.LineSegment(Vector(468.9, 9, 0), Vector(467.3, 11.9, 0)), False)
sketch13.addGeometry(Part.LineSegment(Vector(467.3, 11.9, 0), Vector(463.9, 11.9, 0)), False)
sketch13.addGeometry(Part.LineSegment(Vector(463.9, 11.9, 0), Vector(462.2, 9, 0)), False)
sketch13.addGeometry(Part.LineSegment(Vector(462.2, 9, 0), Vector(463.9, 6.1, 0)), False)
sketch13.addGeometry(Part.LineSegment(Vector(463.9, 6.1, 0), Vector(467.3, 6.1, 0)), False)
sketch13.addConstraint(Sketcher.Constraint("Coincident", 0, 2, 1, 1))
sketch13.addConstraint(Sketcher.Constraint("Coincident", 1, 2, 2, 1))
sketch13.addConstraint(Sketcher.Constraint("Coincident", 2, 2, 3, 1))
sketch13.addConstraint(Sketcher.Constraint("Coincident", 3, 2, 4, 1))
sketch13.addConstraint(Sketcher.Constraint("Coincident", 4, 2, 5, 1))
sketch13.addConstraint(Sketcher.Constraint("Coincident", 5, 2, 0, 1))
sketch13.addConstraint(Sketcher.Constraint("Horizontal", 2))
sketch13.addConstraint(Sketcher.Constraint("Horizontal", 5))
sketch13.addConstraint(Sketcher.Constraint("Parallel", 0, 3))
sketch13.addConstraint(Sketcher.Constraint("Parallel", 1, 4))
sketch13.addConstraint(Sketcher.Constraint("Horizontal", 0, 2, 3, 2))
sketch13.addConstraint(Sketcher.Constraint("Vertical", 2, 2, 4, 2))
sketch13.addConstraint(Sketcher.Constraint("Vertical", 1, 2, 5, 2))
sketch13.addConstraint(Sketcher.Constraint("Angle", 0, Q("60 deg")))
sketch13.addConstraint(Sketcher.Constraint("DistanceY", -1, 1, 0, 2, Q("9 mm")))
sketch13.addConstraint(Sketcher.Constraint("DistanceX", 2, 2, 2, 1, Q("3.35 mm")))
sketch13.addConstraint(Sketcher.Constraint("DistanceX", 3, 2, 0, 2, Q("6.7 mm")))
sketch13.addConstraint(Sketcher.Constraint("DistanceX", -1, 1, 0, 2, Q("468.938457 mm")))
pocket12 = body.newObject("PartDesign::Pocket", "Pocket011")
pocket12.Profile = sketch13
pocket12.Length = 5

sketch14 = body.newObject("Sketcher::SketchObject", "Sketch013")
sketch14.AttachmentSupport = (doc.getObject("XY_Plane"), [""])
sketch14.MapMode = "FlatFace"
sketch14.addGeometry(Part.Circle(Vector(450, 18, 0), Vector(0, 0, 1), 1.8), False)
sketch14.addGeometry(Part.Circle(Vector(434.4, 9, 0), Vector(0, 0, 1), 1.8), False)
sketch14.addGeometry(Part.Circle(Vector(434.4, -9, 0), Vector(0, 0, 1), 1.8), False)
sketch14.addGeometry(Part.Circle(Vector(450, -18, 0), Vector(0, 0, 1), 1.8), False)
sketch14.addGeometry(Part.Circle(Vector(465.6, -9, 0), Vector(0, 0, 1), 1.8), False)
sketch14.addGeometry(Part.Circle(Vector(465.6, 9, 0), Vector(0, 0, 1), 1.8), False)
sketch14.addConstraint(Sketcher.Constraint("Equal", 0, 1))
sketch14.addConstraint(Sketcher.Constraint("Equal", 1, 2))
sketch14.addConstraint(Sketcher.Constraint("Equal", 2, 3))
sketch14.addConstraint(Sketcher.Constraint("Equal", 3, 4))
sketch14.addConstraint(Sketcher.Constraint("Equal", 4, 5))
sketch14.addConstraint(Sketcher.Constraint("Symmetric", 1, 3, 2, 3, -1))
sketch14.addConstraint(Sketcher.Constraint("Symmetric", 0, 3, 3, 3, -1))
sketch14.addConstraint(Sketcher.Constraint("Symmetric", 4, 3, 5, 3, -1))
sketch14.addConstraint(Sketcher.Constraint("Horizontal", 2, 3, 4, 3))
sketch14.addConstraint(Sketcher.Constraint("Diameter", 0, Q("3.6 mm")))
sketch14.addConstraint(Sketcher.Constraint("DistanceX", -1, 1, 0, 3, Q("450 mm")))
sketch14.addConstraint(Sketcher.Constraint("DistanceY", -1, 1, 0, 3, Q("18 mm")))
sketch14.addConstraint(Sketcher.Constraint("DistanceY", -1, 1, 1, 3, Q("9 mm")))
sketch14.addConstraint(Sketcher.Constraint("DistanceX", -1, 1, 1, 3, Q("434.411543 mm")))
sketch14.addConstraint(Sketcher.Constraint("DistanceX", -1, 1, 4, 3, Q("465.588457 mm")))
doc.recompute()
hole = body.newObject("PartDesign::Hole", "Hole")
hole.Profile = sketch14
hole.ThreadType = "None"
hole.Diameter = 3.6
hole.DepthType = "Dimension"
hole.Depth = 8
hole.DrillPoint = "Flat"
hole.Reversed = True

sketch15 = body.newObject("Sketcher::SketchObject", "Sketch014")
sketch15.AttachmentSupport = (doc.getObject("XY_Plane"), [""])
sketch15.MapMode = "FlatFace"
sketch15.addGeometry(Part.Circle(Vector(465, 0, 0), Vector(0, 0, 1), 2.6), False)
sketch15.addGeometry(Part.Circle(Vector(435, 0, 0), Vector(0, 0, 1), 2.6), False)
sketch15.addConstraint(Sketcher.Constraint("Equal", 0, 1))
sketch15.addConstraint(Sketcher.Constraint("PointOnObject", 0, 3, -1))
sketch15.addConstraint(Sketcher.Constraint("PointOnObject", 1, 3, -1))
sketch15.addConstraint(Sketcher.Constraint("Diameter", 0, Q("5.3 mm")))
sketch15.addConstraint(Sketcher.Constraint("DistanceX", -1, 1, 0, 3, Q("465 mm")))
sketch15.addConstraint(Sketcher.Constraint("DistanceX", -1, 1, 1, 3, Q("435 mm")))
doc.recompute()
hole2 = body.newObject("PartDesign::Hole", "Hole001")
hole2.Profile = sketch15
hole2.ThreadType = "None"
hole2.Diameter = 5.3
hole2.DepthType = "Dimension"
hole2.Depth = 8
hole2.DrillPoint = "Flat"
hole2.Reversed = True

sketch16 = body.newObject("Sketcher::SketchObject", "Sketch015")
sketch16.AttachmentSupport = (doc.getObject("XY_Plane"), [""])
sketch16.MapMode = "FlatFace"
sketch16.addGeometry(Part.Circle(Vector(450, 0, 0), Vector(0, 0, 1), 10), False)
sketch16.addConstraint(Sketcher.Constraint("PointOnObject", 0, 3, -1))
sketch16.addConstraint(Sketcher.Constraint("Diameter", 0, Q("21 mm")))
sketch16.addConstraint(Sketcher.Constraint("DistanceX", -1, 1, 0, 3, Q("450 mm")))
doc.recompute()
hole3 = body.newObject("PartDesign::Hole", "Hole002")
hole3.Profile = sketch16
hole3.ThreadType = "None"
hole3.Diameter = 21
hole3.DepthType = "Dimension"
hole3.Depth = 8
hole3.DrillPoint = "Flat"
hole3.Reversed = True

sketch17 = body.newObject("Sketcher::SketchObject", "Sketch016")
sketch17.AttachmentSupport = (doc.getObject("XY_Plane"), [""])
sketch17.MapMode = "FlatFace"
sketch17.addGeometry(Part.Circle(Vector(450, -40, 0), Vector(0, 0, 1), 6), False)
sketch17.addGeometry(Part.Circle(Vector(485, 20, 0), Vector(0, 0, 1), 6), False)
sketch17.addGeometry(Part.Circle(Vector(415, 20, 0), Vector(0, 0, 1), 6), False)
sketch17.addConstraint(Sketcher.Constraint("Equal", 0, 1))
sketch17.addConstraint(Sketcher.Constraint("Equal", 1, 2))
sketch17.addConstraint(Sketcher.Constraint("Horizontal", 1, 3, 2, 3))
sketch17.addConstraint(Sketcher.Constraint("Diameter", 0, Q("13 mm")))
sketch17.addConstraint(Sketcher.Constraint("DistanceX", -1, 1, 0, 3, Q("450 mm")))
sketch17.addConstraint(Sketcher.Constraint("DistanceY", 0, 3, -1, 1, Q("40.5 mm")))
sketch17.addConstraint(Sketcher.Constraint("DistanceY", -1, 1, 1, 3, Q("20.25 mm")))
sketch17.addConstraint(Sketcher.Constraint("DistanceX", -1, 1, 1, 3, Q("485.074029 mm")))
sketch17.addConstraint(Sketcher.Constraint("DistanceX", -1, 1, 2, 3, Q("414.925971 mm")))
doc.recompute()
hole4 = body.newObject("PartDesign::Hole", "Hole003")
hole4.Profile = sketch17
hole4.ThreadType = "None"
hole4.Diameter = 13
hole4.DepthType = "Dimension"
hole4.Depth = 8
hole4.DrillPoint = "Flat"
hole4.Reversed = True

sketch18 = body.newObject("Sketcher::SketchObject", "Sketch017")
sketch18.AttachmentSupport = (doc.getObject("XY_Plane"), [""])
sketch18.MapMode = "FlatFace"
sketch18.AttachmentOffset = App.Placement(Vector(0, 0, 8), App.Rotation())
sketch18.addGeometry(Part.Circle(Vector(489, -22, 0), Vector(0, 0, 1), 6), False)
sketch18.addGeometry(Part.Circle(Vector(450, 45, 0), Vector(0, 0, 1), 6), False)
sketch18.addGeometry(Part.Circle(Vector(411, -22, 0), Vector(0, 0, 1), 6), False)
sketch18.addConstraint(Sketcher.Constraint("Equal", 0, 1))
sketch18.addConstraint(Sketcher.Constraint("Equal", 1, 2))
sketch18.addConstraint(Sketcher.Constraint("Horizontal", 0, 3, 2, 3))
sketch18.addConstraint(Sketcher.Constraint("Diameter", 0, Q("12 mm")))
sketch18.addConstraint(Sketcher.Constraint("DistanceX", -1, 1, 1, 3, Q("450 mm")))
sketch18.addConstraint(Sketcher.Constraint("DistanceY", -1, 1, 1, 3, Q("45 mm")))
sketch18.addConstraint(Sketcher.Constraint("DistanceY", 0, 3, -1, 1, Q("22.5 mm")))
sketch18.addConstraint(Sketcher.Constraint("DistanceX", -1, 1, 0, 3, Q("488.971143 mm")))
sketch18.addConstraint(Sketcher.Constraint("DistanceX", -1, 1, 2, 3, Q("411.028857 mm")))
doc.recompute()
hole5 = body.newObject("PartDesign::Hole", "Hole004")
hole5.Profile = sketch18
hole5.ThreadType = "None"
hole5.Diameter = 12
hole5.DepthType = "Dimension"
hole5.Depth = 8
hole5.DrillPoint = "Flat"
doc.recompute()

fillet = body.newObject("PartDesign::Fillet", "Fillet")
fillet.Base = (hole5, edges_at(hole5, [
    (417.614, -38.094, 4),
    (433.203, -47.094, 4),
    (466.797, -47.094, 4),
    (482.386, -38.094, 4),
    (499.183, -9, 4),
    (499.183, 9, 4),
    (482.386, 38.094, 4),
    (466.797, 47.094, 4),
    (433.203, 47.094, 4),
    (417.614, 38.094, 4),
    (400.817, 9, 4),
    (400.817, -9, 4),
]))
fillet.Radius = 1
doc.recompute()

fillet2 = body.newObject("PartDesign::Fillet", "Fillet001")
fillet2.Base = (fillet, edges_at(fillet, [
    (405.058, -21.913, 4),
    (408.552, -27.965, 4),
    (453.494, 49.878, 4),
    (446.506, 49.878, 4),
    (491.448, -27.965, 4),
    (494.942, -21.913, 4),
]))
fillet2.Radius = 5.678207

doc.recompute()
